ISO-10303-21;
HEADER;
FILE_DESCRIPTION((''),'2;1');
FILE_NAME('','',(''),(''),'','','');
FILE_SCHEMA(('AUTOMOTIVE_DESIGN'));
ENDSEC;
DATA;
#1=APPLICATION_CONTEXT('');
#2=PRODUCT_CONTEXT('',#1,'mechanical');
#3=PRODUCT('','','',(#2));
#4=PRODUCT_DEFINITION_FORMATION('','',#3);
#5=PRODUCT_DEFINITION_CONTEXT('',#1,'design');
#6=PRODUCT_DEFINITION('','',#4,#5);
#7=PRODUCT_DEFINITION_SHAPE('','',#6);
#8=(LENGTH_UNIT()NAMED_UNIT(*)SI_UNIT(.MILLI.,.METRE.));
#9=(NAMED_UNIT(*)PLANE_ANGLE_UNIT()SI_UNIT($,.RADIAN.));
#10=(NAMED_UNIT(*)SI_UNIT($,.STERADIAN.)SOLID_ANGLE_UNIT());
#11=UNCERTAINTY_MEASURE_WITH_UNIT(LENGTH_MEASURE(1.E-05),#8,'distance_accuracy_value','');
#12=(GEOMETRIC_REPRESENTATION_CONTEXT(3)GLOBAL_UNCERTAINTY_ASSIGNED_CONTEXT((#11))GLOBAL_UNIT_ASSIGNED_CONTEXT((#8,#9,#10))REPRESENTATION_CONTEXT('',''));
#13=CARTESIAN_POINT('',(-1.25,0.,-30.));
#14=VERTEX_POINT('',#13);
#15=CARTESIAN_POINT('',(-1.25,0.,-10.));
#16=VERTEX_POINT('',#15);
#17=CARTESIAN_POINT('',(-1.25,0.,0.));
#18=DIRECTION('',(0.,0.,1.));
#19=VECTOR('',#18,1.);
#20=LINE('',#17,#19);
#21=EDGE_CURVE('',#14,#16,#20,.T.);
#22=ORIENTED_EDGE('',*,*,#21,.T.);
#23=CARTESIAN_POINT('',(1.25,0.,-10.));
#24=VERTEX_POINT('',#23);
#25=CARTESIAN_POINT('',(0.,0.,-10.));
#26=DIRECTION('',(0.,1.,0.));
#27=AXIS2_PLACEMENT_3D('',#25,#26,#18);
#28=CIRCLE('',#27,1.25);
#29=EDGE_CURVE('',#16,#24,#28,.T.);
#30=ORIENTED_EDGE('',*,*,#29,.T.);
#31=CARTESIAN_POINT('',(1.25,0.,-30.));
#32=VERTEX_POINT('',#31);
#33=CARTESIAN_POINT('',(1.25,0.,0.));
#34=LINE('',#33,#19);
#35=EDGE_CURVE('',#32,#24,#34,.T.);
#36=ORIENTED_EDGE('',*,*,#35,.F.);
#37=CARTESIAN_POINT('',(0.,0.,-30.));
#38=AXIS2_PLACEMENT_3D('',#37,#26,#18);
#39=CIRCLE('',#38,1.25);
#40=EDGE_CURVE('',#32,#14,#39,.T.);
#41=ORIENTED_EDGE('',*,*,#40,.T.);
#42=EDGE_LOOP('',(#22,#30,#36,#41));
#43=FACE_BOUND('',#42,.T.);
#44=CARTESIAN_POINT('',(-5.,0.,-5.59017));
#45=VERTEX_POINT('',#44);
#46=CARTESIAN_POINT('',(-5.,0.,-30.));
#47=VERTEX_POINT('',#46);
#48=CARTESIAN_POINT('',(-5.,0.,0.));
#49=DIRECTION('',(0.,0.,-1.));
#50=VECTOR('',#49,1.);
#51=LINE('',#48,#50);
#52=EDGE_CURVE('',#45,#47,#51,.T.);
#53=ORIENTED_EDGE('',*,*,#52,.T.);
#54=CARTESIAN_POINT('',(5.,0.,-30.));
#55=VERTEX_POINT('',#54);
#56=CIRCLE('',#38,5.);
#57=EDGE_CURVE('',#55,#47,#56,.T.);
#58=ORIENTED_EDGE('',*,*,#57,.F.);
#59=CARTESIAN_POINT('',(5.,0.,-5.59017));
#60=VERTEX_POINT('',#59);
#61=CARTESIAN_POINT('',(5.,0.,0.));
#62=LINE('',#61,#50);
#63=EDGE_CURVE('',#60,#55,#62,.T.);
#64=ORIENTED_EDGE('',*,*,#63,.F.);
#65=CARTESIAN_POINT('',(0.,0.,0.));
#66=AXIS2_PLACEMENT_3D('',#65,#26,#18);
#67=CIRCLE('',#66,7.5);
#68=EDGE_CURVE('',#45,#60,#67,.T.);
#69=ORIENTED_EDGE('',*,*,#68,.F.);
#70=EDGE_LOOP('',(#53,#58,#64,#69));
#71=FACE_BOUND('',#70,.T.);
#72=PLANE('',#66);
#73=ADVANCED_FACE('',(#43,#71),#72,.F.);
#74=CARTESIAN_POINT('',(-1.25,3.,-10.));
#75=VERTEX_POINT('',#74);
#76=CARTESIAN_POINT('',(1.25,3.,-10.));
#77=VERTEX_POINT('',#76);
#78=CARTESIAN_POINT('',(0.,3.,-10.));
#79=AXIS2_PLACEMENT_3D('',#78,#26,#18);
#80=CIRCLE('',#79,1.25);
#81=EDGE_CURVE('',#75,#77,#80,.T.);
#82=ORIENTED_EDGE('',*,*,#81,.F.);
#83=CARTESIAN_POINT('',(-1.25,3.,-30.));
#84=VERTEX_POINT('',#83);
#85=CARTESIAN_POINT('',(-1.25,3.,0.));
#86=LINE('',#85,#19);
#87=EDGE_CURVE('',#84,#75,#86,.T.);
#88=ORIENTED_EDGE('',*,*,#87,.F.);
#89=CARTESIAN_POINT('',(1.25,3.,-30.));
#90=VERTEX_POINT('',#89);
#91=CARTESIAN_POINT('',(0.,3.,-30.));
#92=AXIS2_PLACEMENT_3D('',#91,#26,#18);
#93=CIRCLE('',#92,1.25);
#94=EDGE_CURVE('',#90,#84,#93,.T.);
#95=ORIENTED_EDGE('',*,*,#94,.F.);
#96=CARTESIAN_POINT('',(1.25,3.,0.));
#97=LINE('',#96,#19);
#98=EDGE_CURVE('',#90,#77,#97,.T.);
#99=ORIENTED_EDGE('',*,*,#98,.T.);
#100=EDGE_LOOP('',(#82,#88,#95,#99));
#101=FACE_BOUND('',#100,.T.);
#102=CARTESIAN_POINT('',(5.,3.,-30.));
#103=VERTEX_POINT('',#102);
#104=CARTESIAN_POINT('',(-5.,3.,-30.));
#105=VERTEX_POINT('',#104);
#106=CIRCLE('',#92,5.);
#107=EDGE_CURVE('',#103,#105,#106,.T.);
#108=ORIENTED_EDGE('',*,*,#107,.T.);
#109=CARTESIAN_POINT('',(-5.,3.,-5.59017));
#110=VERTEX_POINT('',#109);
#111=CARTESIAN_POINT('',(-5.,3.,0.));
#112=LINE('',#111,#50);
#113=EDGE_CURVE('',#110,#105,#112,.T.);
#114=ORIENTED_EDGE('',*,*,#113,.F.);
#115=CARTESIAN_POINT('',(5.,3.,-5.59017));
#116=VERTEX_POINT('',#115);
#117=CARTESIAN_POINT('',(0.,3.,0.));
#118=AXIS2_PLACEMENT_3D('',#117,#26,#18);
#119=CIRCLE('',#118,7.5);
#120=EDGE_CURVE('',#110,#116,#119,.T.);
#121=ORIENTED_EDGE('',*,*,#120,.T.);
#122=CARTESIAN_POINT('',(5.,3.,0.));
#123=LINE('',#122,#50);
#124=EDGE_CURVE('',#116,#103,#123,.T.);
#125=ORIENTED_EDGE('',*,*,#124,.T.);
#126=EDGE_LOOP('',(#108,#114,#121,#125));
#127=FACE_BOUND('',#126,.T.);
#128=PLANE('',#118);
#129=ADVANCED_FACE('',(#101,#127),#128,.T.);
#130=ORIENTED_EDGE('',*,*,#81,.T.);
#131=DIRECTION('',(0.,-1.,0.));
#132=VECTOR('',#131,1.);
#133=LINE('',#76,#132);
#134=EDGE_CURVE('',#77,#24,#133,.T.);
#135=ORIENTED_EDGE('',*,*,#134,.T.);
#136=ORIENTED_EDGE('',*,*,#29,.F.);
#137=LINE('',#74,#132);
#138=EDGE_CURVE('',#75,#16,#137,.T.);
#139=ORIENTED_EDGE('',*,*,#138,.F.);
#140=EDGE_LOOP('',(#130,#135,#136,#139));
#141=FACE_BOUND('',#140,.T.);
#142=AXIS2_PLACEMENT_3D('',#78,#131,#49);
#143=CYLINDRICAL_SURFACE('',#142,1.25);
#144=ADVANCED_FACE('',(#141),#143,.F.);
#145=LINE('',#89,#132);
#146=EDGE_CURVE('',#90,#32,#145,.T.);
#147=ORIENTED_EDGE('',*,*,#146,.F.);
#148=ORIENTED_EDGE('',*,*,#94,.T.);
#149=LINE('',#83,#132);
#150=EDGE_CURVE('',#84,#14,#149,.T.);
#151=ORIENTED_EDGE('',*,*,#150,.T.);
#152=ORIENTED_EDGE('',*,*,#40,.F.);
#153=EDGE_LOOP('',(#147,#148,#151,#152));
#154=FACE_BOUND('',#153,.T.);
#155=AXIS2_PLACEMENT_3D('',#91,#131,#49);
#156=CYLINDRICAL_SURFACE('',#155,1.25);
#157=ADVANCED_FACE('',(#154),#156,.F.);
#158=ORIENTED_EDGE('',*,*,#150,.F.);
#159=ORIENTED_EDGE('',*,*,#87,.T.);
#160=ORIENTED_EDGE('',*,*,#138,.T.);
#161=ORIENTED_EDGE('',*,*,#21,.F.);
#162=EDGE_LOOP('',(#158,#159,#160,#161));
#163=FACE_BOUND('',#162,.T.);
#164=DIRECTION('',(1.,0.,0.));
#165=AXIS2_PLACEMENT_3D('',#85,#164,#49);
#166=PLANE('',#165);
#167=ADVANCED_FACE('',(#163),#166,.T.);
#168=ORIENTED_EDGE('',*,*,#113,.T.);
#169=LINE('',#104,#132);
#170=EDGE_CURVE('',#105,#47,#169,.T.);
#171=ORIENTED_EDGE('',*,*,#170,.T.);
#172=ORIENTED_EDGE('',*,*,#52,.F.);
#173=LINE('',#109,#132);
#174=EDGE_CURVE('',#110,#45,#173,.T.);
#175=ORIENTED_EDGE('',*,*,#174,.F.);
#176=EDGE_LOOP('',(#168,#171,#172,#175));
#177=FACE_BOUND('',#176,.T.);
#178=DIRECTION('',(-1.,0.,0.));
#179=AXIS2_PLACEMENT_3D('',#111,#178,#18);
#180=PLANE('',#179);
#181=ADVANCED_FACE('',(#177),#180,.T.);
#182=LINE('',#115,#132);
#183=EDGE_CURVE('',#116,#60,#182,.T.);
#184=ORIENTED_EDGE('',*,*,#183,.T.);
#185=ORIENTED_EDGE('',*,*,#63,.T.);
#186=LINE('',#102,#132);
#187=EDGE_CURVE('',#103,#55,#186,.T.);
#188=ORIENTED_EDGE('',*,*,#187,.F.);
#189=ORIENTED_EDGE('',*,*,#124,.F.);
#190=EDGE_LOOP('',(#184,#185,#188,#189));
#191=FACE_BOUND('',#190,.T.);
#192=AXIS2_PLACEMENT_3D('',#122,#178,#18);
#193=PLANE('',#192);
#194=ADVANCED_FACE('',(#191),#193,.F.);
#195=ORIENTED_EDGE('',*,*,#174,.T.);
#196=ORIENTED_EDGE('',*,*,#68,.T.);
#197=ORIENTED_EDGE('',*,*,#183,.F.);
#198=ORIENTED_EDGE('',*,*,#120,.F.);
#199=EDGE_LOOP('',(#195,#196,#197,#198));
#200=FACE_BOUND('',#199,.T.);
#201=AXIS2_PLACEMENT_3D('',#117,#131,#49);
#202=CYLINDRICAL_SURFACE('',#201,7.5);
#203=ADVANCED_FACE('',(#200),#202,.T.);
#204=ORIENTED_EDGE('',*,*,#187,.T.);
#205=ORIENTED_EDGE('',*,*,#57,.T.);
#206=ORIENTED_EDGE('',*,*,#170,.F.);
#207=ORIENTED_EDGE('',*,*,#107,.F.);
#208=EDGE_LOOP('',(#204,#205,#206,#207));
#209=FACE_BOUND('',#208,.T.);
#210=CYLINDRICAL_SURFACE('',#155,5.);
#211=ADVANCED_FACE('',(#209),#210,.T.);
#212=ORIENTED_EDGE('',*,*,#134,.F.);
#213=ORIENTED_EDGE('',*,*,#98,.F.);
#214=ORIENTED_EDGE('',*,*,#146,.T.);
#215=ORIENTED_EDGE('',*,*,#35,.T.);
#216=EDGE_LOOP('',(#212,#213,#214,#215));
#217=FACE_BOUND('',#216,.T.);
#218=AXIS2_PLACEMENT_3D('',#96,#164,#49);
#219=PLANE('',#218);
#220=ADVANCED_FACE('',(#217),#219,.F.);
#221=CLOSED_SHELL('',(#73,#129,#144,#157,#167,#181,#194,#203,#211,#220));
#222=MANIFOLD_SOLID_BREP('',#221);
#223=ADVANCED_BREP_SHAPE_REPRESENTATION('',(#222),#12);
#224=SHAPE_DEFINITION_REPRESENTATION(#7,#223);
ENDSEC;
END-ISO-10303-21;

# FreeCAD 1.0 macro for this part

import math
import FreeCAD as App
import Part
import Sketcher

V = App.Vector
Q = App.Units.Quantity

doc = App.newDocument("Part")
body = doc.addObject("PartDesign::Body", "Body")

# Sketch on XZ plane
sketch1 = body.newObject("Sketcher::SketchObject", "Sketch")
sketch1.AttachmentSupport = (doc.getObject("XZ_Plane"), [""])
sketch1.MapMode = "FlatFace"
sketch1.addGeometry([
    Part.LineSegment(V(5, -5.6, 0), V(5, -30, 0)),  # 0
    Part.ArcOfCircle(Part.Circle(V(0, -30, 0), V(0, 0, 1), 5), math.radians(180), math.radians(360)),  # 1
    Part.LineSegment(V(-5, -30, 0), V(-5, -5.6, 0)),  # 2
    Part.ArcOfCircle(Part.Circle(V(0, 0, 0), V(0, 0, 1), 7.5), math.radians(0), math.radians(228)),  # 3
    Part.ArcOfCircle(Part.Circle(V(0, 0, 0), V(0, 0, 1), 7.5), math.radians(-48), math.radians(0)),  # 4
    Part.LineSegment(V(-1.2, -10, 0), V(-1.2, -30, 0)),  # 5
    Part.ArcOfCircle(Part.Circle(V(0, -30, 0), V(0, 0, 1), 1.2), math.radians(180), math.radians(360)),  # 6
    Part.LineSegment(V(1.2, -30, 0), V(1.2, -10, 0)),  # 7
    Part.ArcOfCircle(Part.Circle(V(0, -10, 0), V(0, 0, 1), 1.2), math.radians(0), math.radians(180)),  # 8
], False)
sketch1.addConstraint([
    Sketcher.Constraint("Tangent", 0, 2, 1, 2),
    Sketcher.Constraint("Tangent", 1, 1, 2, 1),
    Sketcher.Constraint("Coincident", 2, 2, 3, 2),
    Sketcher.Constraint("Tangent", 3, 1, 4, 2),
    Sketcher.Constraint("Coincident", 4, 1, 0, 1),
    Sketcher.Constraint("Tangent", 5, 2, 6, 1),
    Sketcher.Constraint("Tangent", 6, 2, 7, 1),
    Sketcher.Constraint("Tangent", 7, 2, 8, 1),
    Sketcher.Constraint("Tangent", 8, 2, 5, 1),
    Sketcher.Constraint("Vertical", 0),
    Sketcher.Constraint("Vertical", 2),
    Sketcher.Constraint("Vertical", 5),
    Sketcher.Constraint("Vertical", 7),
    Sketcher.Constraint("Coincident", 3, 3, -1, 1),
    Sketcher.Constraint("Coincident", 6, 3, 1, 3),
    Sketcher.Constraint("Equal", 3, 4),
    Sketcher.Constraint("PointOnObject", 1, 3, -2),
    Sketcher.Constraint("PointOnObject", 3, 1, -1),
    Sketcher.Constraint("Radius", 1, Q("5 mm")),
    Sketcher.Constraint("Radius", 3, Q("7.5 mm")),
    Sketcher.Constraint("DistanceY", 5, 2, 5, 1, Q("20 mm")),
    Sketcher.Constraint("Radius", 6, Q("1.25 mm")),
    Sketcher.Constraint("DistanceY", 1, 3, -1, 1, Q("30 mm")),
])
pad1 = body.newObject("PartDesign::Pad", "Pad")
pad1.Profile = sketch1
pad1.Length = 3
pad1.Reversed = True

doc.recompute()
